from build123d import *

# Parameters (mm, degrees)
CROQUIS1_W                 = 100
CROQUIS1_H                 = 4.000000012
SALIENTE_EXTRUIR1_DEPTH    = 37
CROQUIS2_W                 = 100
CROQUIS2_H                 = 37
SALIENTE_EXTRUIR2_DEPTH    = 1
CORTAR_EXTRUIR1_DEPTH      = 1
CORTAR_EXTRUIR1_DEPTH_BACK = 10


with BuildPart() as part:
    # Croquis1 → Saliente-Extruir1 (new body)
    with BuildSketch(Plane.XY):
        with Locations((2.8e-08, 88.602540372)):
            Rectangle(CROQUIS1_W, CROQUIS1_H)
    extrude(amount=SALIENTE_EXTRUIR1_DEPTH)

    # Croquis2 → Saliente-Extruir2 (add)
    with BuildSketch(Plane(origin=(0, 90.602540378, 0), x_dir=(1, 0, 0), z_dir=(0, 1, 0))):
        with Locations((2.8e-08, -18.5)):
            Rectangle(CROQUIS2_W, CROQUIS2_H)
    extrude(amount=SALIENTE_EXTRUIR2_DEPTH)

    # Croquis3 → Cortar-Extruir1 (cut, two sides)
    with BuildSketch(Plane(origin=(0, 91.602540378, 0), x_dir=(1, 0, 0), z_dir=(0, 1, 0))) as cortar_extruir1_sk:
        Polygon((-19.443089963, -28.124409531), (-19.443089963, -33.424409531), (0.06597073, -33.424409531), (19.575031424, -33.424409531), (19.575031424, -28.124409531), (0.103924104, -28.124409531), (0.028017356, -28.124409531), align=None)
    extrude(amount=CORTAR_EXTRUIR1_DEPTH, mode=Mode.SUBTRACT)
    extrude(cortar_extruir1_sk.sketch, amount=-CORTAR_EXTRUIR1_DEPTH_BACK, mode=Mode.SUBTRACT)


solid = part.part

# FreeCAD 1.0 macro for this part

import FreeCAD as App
import Part
import Sketcher
from FreeCAD import Vector
Q = App.Units.Quantity

doc = App.newDocument("Part")
body = doc.addObject("PartDesign::Body", "Body")

sketch1 = body.newObject("Sketcher::SketchObject", "Sketch")
sketch1.AttachmentSupport = (doc.getObject("XY_Plane"), [""])
sketch1.MapMode = "FlatFace"
sketch1.addGeometry([
    Part.LineSegment(Vector(-50, 90.6, 0), Vector(-50, 86.6, 0)),
    Part.LineSegment(Vector(-50, 86.6, 0), Vector(50, 86.6, 0)),
    Part.LineSegment(Vector(50, 86.6, 0), Vector(50, 90.6, 0)),
    Part.LineSegment(Vector(50, 90.6, 0), Vector(-50, 90.6, 0)),
], False)
sketch1.addConstraint([
    Sketcher.Constraint("Coincident", 0, 2, 1, 1),
    Sketcher.Constraint("Coincident", 1, 2, 2, 1),
    Sketcher.Constraint("Coincident", 2, 2, 3, 1),
    Sketcher.Constraint("Coincident", 3, 2, 0, 1),
    Sketcher.Constraint("Vertical", 0),
    Sketcher.Constraint("Horizontal", 1),
    Sketcher.Constraint("Vertical", 2),
    Sketcher.Constraint("Horizontal", 3),
    Sketcher.Constraint("DistanceX", 1, 1, 1, 2, Q("100 mm")),
    Sketcher.Constraint("DistanceY", 0, 2, 0, 1, Q("4 mm")),
    Sketcher.Constraint("DistanceX", 0, 2, -1, 1, Q("50 mm")),
    Sketcher.Constraint("DistanceY", -1, 1, 0, 2, Q("86.60254 mm")),
])
pad1 = body.newObject("PartDesign::Pad", "Pad")
pad1.Profile = sketch1
pad1.Length = 37

sketch2 = body.newObject("Sketcher::SketchObject", "Sketch001")
sketch2.AttachmentSupport = (doc.getObject("XZ_Plane"), [""])
sketch2.MapMode = "FlatFace"
sketch2.AttachmentOffset = App.Placement(Vector(0, 0, -90.60254), App.Rotation())
sketch2.addGeometry([
    Part.LineSegment(Vector(-50, 0, 0), Vector(-50, 37, 0)),
    Part.LineSegment(Vector(-50, 37, 0), Vector(50, 37, 0)),
    Part.LineSegment(Vector(50, 37, 0), Vector(50, 0, 0)),
    Part.LineSegment(Vector(50, 0, 0), Vector(-50, 0, 0)),
], False)
sketch2.addConstraint([
    Sketcher.Constraint("Coincident", 0, 2, 1, 1),
    Sketcher.Constraint("Coincident", 1, 2, 2, 1),
    Sketcher.Constraint("Coincident", 2, 2, 3, 1),
    Sketcher.Constraint("Coincident", 3, 2, 0, 1),
    Sketcher.Constraint("Vertical", 0),
    Sketcher.Constraint("Horizontal", 1),
    Sketcher.Constraint("Vertical", 2),
    Sketcher.Constraint("Horizontal", 3),
    Sketcher.Constraint("Symmetric", 2, 2, 3, 2, -1, 1),
    Sketcher.Constraint("DistanceX", 1, 1, 1, 2, Q("100 mm")),
    Sketcher.Constraint("DistanceY", 0, 1, 0, 2, Q("37 mm")),
])
pad2 = body.newObject("PartDesign::Pad", "Pad001")
pad2.Profile = sketch2
pad2.Length = 1
pad2.Reversed = True

sketch3 = body.newObject("Sketcher::SketchObject", "Sketch002")
sketch3.AttachmentSupport = (doc.getObject("XZ_Plane"), [""])
sketch3.MapMode = "FlatFace"
sketch3.AttachmentOffset = App.Placement(Vector(0, 0, -91.60254), App.Rotation())
sketch3.addGeometry([
    Part.LineSegment(Vector(-19, 28, 0), Vector(-19, 33, 0)),
    Part.LineSegment(Vector(-19, 33, 0), Vector(20, 33, 0)),
    Part.LineSegment(Vector(20, 33, 0), Vector(20, 28, 0)),
    Part.LineSegment(Vector(20, 28, 0), Vector(-19, 28, 0)),
], False)
sketch3.addConstraint([
    Sketcher.Constraint("Coincident", 0, 2, 1, 1),
    Sketcher.Constraint("Coincident", 1, 2, 2, 1),
    Sketcher.Constraint("Coincident", 2, 2, 3, 1),
    Sketcher.Constraint("Coincident", 3, 2, 0, 1),
    Sketcher.Constraint("Vertical", 0),
    Sketcher.Constraint("Horizontal", 1),
    Sketcher.Constraint("Vertical", 2),
    Sketcher.Constraint("Horizontal", 3),
    Sketcher.Constraint("DistanceY", 0, 1, 0, 2, Q("5.3 mm")),
    Sketcher.Constraint("DistanceX", 1, 1, 1, 2, Q("39.018121 mm")),
    Sketcher.Constraint("DistanceX", 0, 2, -1, 1, Q("19.44309 mm")),
    Sketcher.Constraint("DistanceY", -1, 1, 0, 2, Q("33.42441 mm")),
])
pocket1 = body.newObject("PartDesign::Pocket", "Pocket")
pocket1.Profile = sketch3
pocket1.Type = "ThroughAll"
pocket1.Midplane = True

doc.recompute()
